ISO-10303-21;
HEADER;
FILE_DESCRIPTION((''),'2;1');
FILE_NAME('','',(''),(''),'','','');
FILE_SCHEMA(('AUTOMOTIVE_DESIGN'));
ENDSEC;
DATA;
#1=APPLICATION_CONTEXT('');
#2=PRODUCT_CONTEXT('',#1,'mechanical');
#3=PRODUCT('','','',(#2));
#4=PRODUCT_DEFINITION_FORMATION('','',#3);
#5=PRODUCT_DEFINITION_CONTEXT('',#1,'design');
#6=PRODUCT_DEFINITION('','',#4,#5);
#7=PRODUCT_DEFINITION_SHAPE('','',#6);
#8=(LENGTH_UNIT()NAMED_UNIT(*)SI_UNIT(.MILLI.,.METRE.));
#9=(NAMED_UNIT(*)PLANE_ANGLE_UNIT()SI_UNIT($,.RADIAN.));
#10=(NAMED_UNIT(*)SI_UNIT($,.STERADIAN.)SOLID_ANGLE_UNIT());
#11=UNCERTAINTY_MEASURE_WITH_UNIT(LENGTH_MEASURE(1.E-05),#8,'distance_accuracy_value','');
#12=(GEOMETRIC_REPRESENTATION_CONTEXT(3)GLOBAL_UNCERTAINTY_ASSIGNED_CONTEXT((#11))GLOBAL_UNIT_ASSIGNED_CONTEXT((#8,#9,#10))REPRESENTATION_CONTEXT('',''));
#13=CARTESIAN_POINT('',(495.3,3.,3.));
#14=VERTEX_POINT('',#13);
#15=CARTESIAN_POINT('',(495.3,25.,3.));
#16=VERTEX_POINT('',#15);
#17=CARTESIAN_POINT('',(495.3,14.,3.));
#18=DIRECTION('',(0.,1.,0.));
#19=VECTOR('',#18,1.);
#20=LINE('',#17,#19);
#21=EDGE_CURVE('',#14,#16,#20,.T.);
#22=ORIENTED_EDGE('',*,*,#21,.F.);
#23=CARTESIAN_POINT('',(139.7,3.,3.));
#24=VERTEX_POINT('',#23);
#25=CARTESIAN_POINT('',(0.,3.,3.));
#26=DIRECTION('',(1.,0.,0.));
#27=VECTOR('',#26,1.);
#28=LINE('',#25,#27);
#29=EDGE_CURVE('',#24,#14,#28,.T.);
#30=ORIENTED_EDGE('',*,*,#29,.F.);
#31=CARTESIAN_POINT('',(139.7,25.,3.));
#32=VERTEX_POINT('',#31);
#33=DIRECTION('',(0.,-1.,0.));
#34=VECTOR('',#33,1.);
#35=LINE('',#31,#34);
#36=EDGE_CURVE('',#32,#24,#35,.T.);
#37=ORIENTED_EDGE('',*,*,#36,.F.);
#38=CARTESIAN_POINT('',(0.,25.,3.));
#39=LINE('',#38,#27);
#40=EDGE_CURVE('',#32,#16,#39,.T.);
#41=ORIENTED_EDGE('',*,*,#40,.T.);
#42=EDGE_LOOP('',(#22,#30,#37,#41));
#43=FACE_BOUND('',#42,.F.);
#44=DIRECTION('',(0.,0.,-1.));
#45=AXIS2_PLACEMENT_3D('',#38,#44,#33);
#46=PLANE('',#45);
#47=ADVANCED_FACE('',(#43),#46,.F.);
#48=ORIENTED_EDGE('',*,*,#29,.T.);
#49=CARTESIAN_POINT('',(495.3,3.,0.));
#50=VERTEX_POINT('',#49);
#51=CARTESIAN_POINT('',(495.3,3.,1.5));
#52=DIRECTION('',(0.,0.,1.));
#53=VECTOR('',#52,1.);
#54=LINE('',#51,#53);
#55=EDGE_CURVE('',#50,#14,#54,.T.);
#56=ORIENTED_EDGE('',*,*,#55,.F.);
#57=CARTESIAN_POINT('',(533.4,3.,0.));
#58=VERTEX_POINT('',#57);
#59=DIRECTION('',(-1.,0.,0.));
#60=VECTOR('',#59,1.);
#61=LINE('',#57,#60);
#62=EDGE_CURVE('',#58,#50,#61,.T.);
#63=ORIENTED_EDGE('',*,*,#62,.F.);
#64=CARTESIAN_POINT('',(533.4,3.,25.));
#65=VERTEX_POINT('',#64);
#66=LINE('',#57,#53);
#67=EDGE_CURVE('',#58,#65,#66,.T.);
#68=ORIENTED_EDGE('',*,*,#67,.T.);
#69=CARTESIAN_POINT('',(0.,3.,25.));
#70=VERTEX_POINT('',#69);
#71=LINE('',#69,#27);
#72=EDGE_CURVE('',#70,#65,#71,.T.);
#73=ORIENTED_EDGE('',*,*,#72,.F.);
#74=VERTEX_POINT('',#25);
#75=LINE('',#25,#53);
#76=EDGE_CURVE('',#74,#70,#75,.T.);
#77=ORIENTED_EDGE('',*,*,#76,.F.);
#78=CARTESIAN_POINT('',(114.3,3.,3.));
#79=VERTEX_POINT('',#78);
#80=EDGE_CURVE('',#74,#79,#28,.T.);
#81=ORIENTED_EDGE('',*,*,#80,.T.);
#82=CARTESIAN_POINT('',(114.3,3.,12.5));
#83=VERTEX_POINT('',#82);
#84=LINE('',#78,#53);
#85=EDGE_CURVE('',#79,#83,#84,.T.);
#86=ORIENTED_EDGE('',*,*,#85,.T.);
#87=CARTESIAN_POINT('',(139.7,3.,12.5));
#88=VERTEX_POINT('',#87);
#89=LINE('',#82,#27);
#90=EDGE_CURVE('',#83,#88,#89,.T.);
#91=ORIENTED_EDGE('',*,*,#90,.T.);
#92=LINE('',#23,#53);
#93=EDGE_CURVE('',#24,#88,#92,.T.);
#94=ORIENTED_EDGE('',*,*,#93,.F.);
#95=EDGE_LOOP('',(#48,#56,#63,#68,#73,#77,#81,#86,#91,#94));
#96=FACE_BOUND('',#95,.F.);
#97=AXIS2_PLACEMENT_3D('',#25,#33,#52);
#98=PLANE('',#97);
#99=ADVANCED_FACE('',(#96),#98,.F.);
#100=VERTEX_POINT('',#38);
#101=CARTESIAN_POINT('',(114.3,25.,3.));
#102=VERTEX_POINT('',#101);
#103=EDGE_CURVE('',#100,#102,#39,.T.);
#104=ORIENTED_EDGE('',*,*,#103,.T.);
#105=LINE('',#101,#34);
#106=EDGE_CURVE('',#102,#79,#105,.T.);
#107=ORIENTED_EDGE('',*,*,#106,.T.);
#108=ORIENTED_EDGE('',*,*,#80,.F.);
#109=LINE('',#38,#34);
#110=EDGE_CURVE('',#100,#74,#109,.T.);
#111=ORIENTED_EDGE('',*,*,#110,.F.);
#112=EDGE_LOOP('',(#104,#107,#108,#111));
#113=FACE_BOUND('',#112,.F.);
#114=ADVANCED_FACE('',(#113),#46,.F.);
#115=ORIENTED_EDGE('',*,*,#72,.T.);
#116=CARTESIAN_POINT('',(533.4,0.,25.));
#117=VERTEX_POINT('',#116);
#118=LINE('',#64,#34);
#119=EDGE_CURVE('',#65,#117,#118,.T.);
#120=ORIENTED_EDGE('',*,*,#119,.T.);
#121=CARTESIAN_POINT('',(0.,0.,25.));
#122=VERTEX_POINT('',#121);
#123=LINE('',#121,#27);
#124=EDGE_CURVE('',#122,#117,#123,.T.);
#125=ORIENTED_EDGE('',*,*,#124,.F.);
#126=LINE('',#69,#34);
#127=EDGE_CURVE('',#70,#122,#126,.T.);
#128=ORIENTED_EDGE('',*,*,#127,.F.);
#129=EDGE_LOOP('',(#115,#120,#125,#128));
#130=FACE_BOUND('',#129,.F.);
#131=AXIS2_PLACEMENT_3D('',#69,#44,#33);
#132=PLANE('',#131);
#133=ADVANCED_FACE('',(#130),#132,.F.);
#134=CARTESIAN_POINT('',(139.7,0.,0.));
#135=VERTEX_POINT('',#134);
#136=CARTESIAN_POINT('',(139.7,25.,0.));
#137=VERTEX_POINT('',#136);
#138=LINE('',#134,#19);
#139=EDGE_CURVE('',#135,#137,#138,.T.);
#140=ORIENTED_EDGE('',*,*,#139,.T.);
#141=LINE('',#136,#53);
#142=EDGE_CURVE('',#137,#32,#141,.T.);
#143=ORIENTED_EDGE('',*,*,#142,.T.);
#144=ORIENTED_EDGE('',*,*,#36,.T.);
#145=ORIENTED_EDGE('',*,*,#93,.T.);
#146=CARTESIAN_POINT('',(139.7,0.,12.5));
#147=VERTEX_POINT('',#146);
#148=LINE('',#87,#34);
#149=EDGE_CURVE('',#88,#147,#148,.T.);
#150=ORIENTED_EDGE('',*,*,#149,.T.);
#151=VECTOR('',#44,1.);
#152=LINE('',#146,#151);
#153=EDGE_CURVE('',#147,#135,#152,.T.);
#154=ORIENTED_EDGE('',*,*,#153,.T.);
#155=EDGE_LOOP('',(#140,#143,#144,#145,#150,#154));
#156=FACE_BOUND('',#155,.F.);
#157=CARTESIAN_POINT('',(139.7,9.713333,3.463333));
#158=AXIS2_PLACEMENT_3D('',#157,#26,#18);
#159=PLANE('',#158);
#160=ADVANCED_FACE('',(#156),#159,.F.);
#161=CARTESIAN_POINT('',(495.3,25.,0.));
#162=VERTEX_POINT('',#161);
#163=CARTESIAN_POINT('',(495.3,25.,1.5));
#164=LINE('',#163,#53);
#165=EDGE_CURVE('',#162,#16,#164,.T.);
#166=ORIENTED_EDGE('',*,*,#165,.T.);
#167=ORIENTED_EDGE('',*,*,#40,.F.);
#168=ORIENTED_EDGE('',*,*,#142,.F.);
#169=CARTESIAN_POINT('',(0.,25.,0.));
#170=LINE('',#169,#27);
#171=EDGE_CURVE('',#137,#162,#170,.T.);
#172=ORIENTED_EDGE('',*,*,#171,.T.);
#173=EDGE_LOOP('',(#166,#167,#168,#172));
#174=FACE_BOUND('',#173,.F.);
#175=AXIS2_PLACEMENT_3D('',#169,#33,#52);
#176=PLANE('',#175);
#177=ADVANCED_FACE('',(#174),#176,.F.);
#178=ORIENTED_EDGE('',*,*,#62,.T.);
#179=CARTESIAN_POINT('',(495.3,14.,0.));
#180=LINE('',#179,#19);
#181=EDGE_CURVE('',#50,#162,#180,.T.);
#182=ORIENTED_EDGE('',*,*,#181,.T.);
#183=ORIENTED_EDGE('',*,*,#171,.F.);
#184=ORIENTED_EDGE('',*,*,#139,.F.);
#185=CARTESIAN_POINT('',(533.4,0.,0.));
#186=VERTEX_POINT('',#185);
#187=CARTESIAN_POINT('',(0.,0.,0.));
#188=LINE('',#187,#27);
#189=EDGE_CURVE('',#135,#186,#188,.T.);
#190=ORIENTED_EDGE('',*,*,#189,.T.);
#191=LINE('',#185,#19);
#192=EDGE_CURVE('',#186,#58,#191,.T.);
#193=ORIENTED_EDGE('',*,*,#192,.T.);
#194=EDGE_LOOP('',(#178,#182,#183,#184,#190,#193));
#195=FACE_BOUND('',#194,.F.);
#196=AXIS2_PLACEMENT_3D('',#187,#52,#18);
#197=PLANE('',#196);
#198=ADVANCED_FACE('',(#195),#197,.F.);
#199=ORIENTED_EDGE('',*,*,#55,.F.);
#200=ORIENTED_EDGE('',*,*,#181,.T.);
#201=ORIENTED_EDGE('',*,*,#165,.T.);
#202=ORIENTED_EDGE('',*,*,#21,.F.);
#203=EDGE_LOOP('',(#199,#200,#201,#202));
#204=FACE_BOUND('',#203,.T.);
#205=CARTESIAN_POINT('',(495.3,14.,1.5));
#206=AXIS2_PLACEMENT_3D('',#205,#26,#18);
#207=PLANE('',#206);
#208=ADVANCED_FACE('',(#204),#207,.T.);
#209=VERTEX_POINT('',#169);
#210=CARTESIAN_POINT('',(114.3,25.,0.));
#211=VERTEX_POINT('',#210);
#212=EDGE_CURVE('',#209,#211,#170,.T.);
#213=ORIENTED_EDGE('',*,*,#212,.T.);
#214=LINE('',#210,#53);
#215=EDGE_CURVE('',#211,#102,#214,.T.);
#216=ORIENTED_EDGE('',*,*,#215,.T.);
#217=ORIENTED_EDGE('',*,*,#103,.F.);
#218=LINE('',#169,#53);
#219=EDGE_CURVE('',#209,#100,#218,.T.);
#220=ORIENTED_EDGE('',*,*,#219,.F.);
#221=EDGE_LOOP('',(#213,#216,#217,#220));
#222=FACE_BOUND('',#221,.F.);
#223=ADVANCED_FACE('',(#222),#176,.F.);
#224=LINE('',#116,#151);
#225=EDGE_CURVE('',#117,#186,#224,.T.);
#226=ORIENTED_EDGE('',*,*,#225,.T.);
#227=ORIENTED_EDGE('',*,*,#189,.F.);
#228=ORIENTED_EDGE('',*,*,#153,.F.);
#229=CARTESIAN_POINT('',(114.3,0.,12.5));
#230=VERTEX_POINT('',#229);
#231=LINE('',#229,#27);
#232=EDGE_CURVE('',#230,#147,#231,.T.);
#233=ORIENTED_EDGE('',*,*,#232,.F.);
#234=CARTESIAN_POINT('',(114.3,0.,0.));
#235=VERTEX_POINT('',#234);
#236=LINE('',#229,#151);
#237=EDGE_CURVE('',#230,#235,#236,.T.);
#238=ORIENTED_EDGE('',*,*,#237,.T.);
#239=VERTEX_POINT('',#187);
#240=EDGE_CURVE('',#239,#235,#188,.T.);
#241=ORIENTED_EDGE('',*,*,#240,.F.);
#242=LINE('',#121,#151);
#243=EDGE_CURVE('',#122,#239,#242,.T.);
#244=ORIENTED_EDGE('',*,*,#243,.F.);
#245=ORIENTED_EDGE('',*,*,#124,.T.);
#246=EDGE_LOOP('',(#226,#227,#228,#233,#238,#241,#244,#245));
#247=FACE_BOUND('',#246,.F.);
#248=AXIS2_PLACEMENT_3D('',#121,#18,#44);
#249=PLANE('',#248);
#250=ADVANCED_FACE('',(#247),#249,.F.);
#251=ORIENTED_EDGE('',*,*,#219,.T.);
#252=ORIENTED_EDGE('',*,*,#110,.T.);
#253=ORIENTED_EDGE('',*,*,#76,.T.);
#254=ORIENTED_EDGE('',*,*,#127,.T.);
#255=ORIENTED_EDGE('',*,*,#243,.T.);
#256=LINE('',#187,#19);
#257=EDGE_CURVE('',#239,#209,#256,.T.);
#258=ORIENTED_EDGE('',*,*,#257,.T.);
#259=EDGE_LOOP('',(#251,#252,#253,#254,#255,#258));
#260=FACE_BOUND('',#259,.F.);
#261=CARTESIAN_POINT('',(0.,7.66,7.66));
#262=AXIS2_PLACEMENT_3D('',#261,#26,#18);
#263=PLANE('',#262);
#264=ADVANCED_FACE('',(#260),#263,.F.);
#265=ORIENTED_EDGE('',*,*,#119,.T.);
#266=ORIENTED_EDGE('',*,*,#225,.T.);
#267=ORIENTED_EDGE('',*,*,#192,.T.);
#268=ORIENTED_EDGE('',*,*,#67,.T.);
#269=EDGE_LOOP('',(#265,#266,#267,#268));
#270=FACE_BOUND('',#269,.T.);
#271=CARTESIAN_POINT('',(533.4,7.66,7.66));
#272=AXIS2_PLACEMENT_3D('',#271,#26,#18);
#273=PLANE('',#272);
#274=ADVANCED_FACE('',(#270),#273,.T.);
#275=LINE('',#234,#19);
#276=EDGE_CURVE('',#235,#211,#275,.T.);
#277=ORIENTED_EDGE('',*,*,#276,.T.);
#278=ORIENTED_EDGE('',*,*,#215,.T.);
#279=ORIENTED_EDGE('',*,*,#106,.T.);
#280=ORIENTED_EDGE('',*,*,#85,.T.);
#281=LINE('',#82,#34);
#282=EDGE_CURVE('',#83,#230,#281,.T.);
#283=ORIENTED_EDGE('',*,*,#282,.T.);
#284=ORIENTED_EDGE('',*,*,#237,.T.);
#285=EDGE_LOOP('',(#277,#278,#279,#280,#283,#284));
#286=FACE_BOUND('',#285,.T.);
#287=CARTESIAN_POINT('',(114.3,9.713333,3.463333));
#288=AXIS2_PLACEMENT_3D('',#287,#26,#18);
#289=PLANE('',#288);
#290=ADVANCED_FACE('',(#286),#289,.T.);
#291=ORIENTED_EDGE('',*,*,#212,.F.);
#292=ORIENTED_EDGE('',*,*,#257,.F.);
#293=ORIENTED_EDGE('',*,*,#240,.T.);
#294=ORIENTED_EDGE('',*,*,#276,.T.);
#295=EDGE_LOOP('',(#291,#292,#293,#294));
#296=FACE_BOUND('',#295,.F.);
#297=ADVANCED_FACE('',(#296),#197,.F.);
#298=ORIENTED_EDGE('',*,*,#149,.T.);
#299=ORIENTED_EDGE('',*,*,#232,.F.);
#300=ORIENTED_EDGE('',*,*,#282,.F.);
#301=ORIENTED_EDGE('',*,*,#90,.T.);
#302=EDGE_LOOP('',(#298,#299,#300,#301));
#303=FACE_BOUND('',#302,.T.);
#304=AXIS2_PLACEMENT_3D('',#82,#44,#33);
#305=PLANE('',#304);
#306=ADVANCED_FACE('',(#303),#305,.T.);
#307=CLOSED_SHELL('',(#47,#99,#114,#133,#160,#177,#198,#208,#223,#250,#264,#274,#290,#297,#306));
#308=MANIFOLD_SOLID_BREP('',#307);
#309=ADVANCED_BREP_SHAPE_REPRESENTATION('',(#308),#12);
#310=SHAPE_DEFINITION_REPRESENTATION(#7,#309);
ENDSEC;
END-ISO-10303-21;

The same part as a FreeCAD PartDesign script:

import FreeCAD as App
import Part
import Sketcher

doc = App.newDocument("Part")
params = doc.addObject("Spreadsheet::Sheet", "Params")
for row, (alias, value) in enumerate([
    ("sketch1_width", "25 mm"),
    ("sketch1_width2", "22 mm"),
    ("pad1_length", "533.4 mm"),
    ("sketch2_width", "25 mm"),
    ("sketch2_width2", "22 mm"),
    ("sketch2_height", "12.5 mm"),
    ("pocket1_length", "25.4 mm"),
    ("sketch3_width", "22 mm"),
    ("sketch3_height", "3 mm"),
    ("pocket2_length", "38.1 mm"),
], start=1):
    params.set(f"A{row}", alias)
    params.set(f"B{row}", "=" + value)
    params.setAlias(f"B{row}", alias)

body = doc.addObject("PartDesign::Body", "Body")

# Sketch on YZ plane
sketch1 = body.newObject("Sketcher::SketchObject", "Sketch")
sketch1.AttachmentSupport = (doc.getObject("YZ_Plane"), [""])
sketch1.MapMode = "FlatFace"
sketch1.addGeometry(Part.LineSegment(App.Vector(0, 25, 0), App.Vector(0, 0, 0)), False)
sketch1.addGeometry(Part.LineSegment(App.Vector(0, 0, 0), App.Vector(25, 0, 0)), False)
sketch1.addGeometry(Part.LineSegment(App.Vector(25, 0, 0), App.Vector(25, 3, 0)), False)
sketch1.addGeometry(Part.LineSegment(App.Vector(25, 3, 0), App.Vector(3, 3, 0)), False)
sketch1.addGeometry(Part.LineSegment(App.Vector(3, 3, 0), App.Vector(3, 25, 0)), False)
sketch1.addGeometry(Part.LineSegment(App.Vector(3, 25, 0), App.Vector(0, 25, 0)), False)
sketch1.addConstraint(Sketcher.Constraint("Coincident", 0, 2, 1, 1))
sketch1.addConstraint(Sketcher.Constraint("Coincident", 1, 2, 2, 1))
sketch1.addConstraint(Sketcher.Constraint("Coincident", 2, 2, 3, 1))
sketch1.addConstraint(Sketcher.Constraint("Coincident", 3, 2, 4, 1))
sketch1.addConstraint(Sketcher.Constraint("Coincident", 4, 2, 5, 1))
sketch1.addConstraint(Sketcher.Constraint("Coincident", 5, 2, 0, 1))
sketch1.addConstraint(Sketcher.Constraint("Vertical", 0))
sketch1.addConstraint(Sketcher.Constraint("Horizontal", 1))
sketch1.addConstraint(Sketcher.Constraint("Vertical", 2))
sketch1.addConstraint(Sketcher.Constraint("Horizontal", 3))
sketch1.addConstraint(Sketcher.Constraint("Vertical", 4))
sketch1.addConstraint(Sketcher.Constraint("Horizontal", 5))
sketch1.addConstraint(Sketcher.Constraint("Coincident", 0, 2, -1, 1))
sketch1.addConstraint(Sketcher.Constraint("Equal", 1, 0))
sketch1.addConstraint(Sketcher.Constraint("Equal", 5, 2))
sketch1.addConstraint(Sketcher.Constraint("DistanceX", 1, 1, 1, 2, 25.0))
sketch1.addConstraint(Sketcher.Constraint("DistanceX", 3, 2, 3, 1, 22.0))
sketch1.setExpression("Constraints[15]", "Params.sketch1_width")
sketch1.setExpression("Constraints[16]", "Params.sketch1_width2")
pad1 = body.newObject("PartDesign::Pad", "Pad")
pad1.Profile = sketch1
pad1.setExpression("Length", "Params.pad1_length")

# Sketch on YZ plane
sketch2 = body.newObject("Sketcher::SketchObject", "Sketch001")
sketch2.AttachmentSupport = (doc.getObject("YZ_Plane"), [""])
sketch2.MapMode = "FlatFace"
sketch2.AttachmentOffset = App.Placement(App.Vector(0, 0, 114.3), App.Rotation())
sketch2.addGeometry(Part.LineSegment(App.Vector(0, 12.5, 0), App.Vector(0, 0, 0)), False)
sketch2.addGeometry(Part.LineSegment(App.Vector(0, 0, 0), App.Vector(25, 0, 0)), False)
sketch2.addGeometry(Part.LineSegment(App.Vector(25, 0, 0), App.Vector(25, 3, 0)), False)
sketch2.addGeometry(Part.LineSegment(App.Vector(25, 3, 0), App.Vector(3, 3, 0)), False)
sketch2.addGeometry(Part.LineSegment(App.Vector(3, 3, 0), App.Vector(3, 12.5, 0)), False)
sketch2.addGeometry(Part.LineSegment(App.Vector(3, 12.5, 0), App.Vector(0, 12.5, 0)), False)
sketch2.addConstraint(Sketcher.Constraint("Coincident", 0, 2, 1, 1))
sketch2.addConstraint(Sketcher.Constraint("Coincident", 1, 2, 2, 1))
sketch2.addConstraint(Sketcher.Constraint("Coincident", 2, 2, 3, 1))
sketch2.addConstraint(Sketcher.Constraint("Coincident", 3, 2, 4, 1))
sketch2.addConstraint(Sketcher.Constraint("Coincident", 4, 2, 5, 1))
sketch2.addConstraint(Sketcher.Constraint("Coincident", 5, 2, 0, 1))
sketch2.addConstraint(Sketcher.Constraint("Vertical", 0))
sketch2.addConstraint(Sketcher.Constraint("Horizontal", 1))
sketch2.addConstraint(Sketcher.Constraint("Vertical", 2))
sketch2.addConstraint(Sketcher.Constraint("Horizontal", 3))
sketch2.addConstraint(Sketcher.Constraint("Vertical", 4))
sketch2.addConstraint(Sketcher.Constraint("Horizontal", 5))
sketch2.addConstraint(Sketcher.Constraint("Coincident", 0, 2, -1, 1))
sketch2.addConstraint(Sketcher.Constraint("Equal", 5, 2))
sketch2.addConstraint(Sketcher.Constraint("DistanceX", 1, 1, 1, 2, 25.0))
sketch2.addConstraint(Sketcher.Constraint("DistanceX", 3, 2, 3, 1, 22.0))
sketch2.addConstraint(Sketcher.Constraint("DistanceY", 0, 2, 0, 1, 12.5))
sketch2.setExpression("Constraints[14]", "Params.sketch2_width")
sketch2.setExpression("Constraints[15]", "Params.sketch2_width2")
sketch2.setExpression("Constraints[16]", "Params.sketch2_height")
pocket1 = body.newObject("PartDesign::Pocket", "Pocket")
pocket1.Profile = sketch2
pocket1.setExpression("Length", "Params.pocket1_length")
pocket1.Reversed = True

# Sketch on YZ plane
sketch3 = body.newObject("Sketcher::SketchObject", "Sketch002")
sketch3.AttachmentSupport = (doc.getObject("YZ_Plane"), [""])
sketch3.MapMode = "FlatFace"
sketch3.AttachmentOffset = App.Placement(App.Vector(0, 0, 533.4), App.Rotation())
sketch3.addGeometry(Part.LineSegment(App.Vector(3, 3, 0), App.Vector(3, 0, 0)), False)
sketch3.addGeometry(Part.LineSegment(App.Vector(3, 0, 0), App.Vector(25, 0, 0)), False)
sketch3.addGeometry(Part.LineSegment(App.Vector(25, 0, 0), App.Vector(25, 3, 0)), False)
sketch3.addGeometry(Part.LineSegment(App.Vector(25, 3, 0), App.Vector(3, 3, 0)), False)
sketch3.addConstraint(Sketcher.Constraint("Coincident", 0, 2, 1, 1))
sketch3.addConstraint(Sketcher.Constraint("Coincident", 1, 2, 2, 1))
sketch3.addConstraint(Sketcher.Constraint("Coincident", 2, 2, 3, 1))
sketch3.addConstraint(Sketcher.Constraint("Coincident", 3, 2, 0, 1))
sketch3.addConstraint(Sketcher.Constraint("Vertical", 0))
sketch3.addConstraint(Sketcher.Constraint("Horizontal", 1))
sketch3.addConstraint(Sketcher.Constraint("Vertical", 2))
sketch3.addConstraint(Sketcher.Constraint("Horizontal", 3))
sketch3.addConstraint(Sketcher.Constraint("PointOnObject", 0, 2, -1))
sketch3.addConstraint(Sketcher.Constraint("DistanceX", 1, 1, 1, 2, 22.0))
sketch3.addConstraint(Sketcher.Constraint("DistanceY", 0, 2, 0, 1, 3.0))
sketch3.addConstraint(Sketcher.Constraint("DistanceX", -1, 1, 0, 2, 3.0))
sketch3.setExpression("Constraints[9]", "Params.sketch3_width")
sketch3.setExpression("Constraints[10]", "Params.sketch3_height")
pocket2 = body.newObject("PartDesign::Pocket", "Pocket001")
pocket2.Profile = sketch3
pocket2.setExpression("Length", "Params.pocket2_length")

doc.recompute()
